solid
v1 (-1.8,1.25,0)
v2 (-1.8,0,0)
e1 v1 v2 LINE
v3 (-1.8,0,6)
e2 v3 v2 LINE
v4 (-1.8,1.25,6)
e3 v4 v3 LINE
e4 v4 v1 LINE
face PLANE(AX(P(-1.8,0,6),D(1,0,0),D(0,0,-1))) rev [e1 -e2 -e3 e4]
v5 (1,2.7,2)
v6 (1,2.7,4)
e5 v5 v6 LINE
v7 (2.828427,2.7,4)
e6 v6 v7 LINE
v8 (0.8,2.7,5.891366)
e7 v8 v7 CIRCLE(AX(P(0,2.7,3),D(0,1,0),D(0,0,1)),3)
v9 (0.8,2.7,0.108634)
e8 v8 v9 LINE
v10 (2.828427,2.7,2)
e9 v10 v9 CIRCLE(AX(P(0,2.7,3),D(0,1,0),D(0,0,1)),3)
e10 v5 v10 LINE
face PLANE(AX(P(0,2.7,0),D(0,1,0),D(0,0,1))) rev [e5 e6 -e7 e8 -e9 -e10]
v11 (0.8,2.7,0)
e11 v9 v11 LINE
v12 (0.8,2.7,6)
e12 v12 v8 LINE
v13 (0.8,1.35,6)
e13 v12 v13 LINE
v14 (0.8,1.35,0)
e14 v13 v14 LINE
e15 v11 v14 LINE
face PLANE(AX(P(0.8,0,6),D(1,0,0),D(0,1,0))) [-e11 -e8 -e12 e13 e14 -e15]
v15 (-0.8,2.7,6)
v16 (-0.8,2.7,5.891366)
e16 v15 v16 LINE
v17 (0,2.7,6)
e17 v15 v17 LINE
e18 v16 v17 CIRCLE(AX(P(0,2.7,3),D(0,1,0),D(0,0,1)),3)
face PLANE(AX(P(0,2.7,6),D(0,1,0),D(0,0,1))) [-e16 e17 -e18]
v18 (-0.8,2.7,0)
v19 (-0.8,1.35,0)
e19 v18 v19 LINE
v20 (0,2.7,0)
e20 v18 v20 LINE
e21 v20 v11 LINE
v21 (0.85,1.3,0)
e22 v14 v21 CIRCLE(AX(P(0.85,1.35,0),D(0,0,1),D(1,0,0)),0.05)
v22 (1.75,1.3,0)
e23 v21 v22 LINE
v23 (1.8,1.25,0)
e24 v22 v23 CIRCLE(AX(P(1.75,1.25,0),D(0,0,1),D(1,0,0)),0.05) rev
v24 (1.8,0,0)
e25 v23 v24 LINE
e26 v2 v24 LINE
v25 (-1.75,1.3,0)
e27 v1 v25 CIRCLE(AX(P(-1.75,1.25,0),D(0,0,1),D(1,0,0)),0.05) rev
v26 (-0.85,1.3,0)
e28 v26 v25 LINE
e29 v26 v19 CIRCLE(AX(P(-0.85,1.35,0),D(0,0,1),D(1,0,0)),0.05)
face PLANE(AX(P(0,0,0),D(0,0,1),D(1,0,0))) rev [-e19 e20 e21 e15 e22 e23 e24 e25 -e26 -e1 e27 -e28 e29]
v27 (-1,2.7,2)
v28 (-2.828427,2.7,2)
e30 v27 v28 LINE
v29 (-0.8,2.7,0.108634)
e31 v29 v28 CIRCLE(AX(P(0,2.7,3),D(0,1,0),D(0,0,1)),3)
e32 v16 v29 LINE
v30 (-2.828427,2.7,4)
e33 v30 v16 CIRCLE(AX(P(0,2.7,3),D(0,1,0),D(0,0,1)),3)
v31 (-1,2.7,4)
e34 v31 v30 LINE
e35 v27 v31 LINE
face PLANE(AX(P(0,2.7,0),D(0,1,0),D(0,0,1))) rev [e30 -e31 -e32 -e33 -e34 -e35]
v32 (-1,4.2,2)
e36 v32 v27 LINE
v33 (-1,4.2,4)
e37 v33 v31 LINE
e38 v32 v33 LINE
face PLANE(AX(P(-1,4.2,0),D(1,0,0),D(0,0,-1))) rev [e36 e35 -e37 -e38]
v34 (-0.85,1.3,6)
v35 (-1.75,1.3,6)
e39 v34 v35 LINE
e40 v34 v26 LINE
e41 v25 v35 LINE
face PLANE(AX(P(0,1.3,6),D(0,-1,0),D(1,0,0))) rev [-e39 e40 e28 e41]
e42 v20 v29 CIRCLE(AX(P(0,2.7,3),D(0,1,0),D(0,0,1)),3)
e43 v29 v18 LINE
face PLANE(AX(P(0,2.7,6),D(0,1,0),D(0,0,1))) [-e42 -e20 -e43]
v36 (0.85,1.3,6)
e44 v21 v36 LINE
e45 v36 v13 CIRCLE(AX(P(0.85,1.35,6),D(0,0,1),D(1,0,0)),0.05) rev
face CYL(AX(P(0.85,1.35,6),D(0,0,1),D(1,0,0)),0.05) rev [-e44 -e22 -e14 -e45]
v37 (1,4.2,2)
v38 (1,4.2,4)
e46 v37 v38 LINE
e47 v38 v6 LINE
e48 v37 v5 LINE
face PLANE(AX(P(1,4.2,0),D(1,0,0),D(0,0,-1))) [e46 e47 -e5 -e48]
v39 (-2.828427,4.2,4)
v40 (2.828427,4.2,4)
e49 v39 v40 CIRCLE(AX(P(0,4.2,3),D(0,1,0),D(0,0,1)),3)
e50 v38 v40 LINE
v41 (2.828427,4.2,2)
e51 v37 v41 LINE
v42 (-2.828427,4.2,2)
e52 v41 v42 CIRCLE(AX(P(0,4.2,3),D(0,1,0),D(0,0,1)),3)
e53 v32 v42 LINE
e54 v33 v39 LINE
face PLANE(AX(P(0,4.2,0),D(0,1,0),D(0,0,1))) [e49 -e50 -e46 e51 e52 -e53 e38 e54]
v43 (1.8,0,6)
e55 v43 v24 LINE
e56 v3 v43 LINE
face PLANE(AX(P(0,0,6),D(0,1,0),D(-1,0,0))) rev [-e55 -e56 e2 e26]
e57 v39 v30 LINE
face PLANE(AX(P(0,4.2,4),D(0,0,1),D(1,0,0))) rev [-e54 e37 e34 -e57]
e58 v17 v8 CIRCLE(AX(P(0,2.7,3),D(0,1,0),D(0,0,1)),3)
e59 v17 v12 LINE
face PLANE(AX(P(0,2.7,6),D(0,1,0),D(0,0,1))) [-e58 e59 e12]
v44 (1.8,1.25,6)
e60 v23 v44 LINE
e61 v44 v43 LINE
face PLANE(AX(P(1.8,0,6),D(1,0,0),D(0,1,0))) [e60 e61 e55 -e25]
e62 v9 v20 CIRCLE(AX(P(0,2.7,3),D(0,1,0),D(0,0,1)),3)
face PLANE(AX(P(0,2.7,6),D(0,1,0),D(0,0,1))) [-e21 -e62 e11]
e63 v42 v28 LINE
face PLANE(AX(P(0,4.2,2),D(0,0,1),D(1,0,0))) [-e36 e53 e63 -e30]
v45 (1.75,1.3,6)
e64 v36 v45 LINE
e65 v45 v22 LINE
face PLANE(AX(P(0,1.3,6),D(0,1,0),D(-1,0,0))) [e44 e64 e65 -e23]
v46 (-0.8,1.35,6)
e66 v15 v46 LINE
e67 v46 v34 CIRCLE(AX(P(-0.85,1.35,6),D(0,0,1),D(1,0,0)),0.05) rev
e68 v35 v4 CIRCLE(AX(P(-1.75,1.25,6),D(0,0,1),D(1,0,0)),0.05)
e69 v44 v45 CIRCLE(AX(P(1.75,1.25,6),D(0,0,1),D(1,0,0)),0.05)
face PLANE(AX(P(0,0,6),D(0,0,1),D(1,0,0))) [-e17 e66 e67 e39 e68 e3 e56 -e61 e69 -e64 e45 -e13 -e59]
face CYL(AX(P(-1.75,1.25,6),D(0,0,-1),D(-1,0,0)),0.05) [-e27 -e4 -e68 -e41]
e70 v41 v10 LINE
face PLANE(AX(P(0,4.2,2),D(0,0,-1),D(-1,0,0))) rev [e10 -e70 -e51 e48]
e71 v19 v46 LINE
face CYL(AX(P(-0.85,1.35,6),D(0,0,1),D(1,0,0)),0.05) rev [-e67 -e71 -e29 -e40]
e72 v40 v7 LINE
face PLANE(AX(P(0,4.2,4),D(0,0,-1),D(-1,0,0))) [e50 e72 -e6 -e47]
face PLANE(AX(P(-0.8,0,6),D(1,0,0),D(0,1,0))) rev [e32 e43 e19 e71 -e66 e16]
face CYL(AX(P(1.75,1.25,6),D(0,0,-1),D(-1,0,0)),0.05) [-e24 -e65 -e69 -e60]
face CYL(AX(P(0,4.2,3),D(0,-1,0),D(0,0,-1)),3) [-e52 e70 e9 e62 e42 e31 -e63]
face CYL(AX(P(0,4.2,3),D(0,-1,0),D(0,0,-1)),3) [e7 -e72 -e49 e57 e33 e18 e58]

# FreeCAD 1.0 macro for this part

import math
import FreeCAD as App
import Part
import Sketcher

V = App.Vector


def edges_at(feature, points):
    """Names of the edges that pass closest to the given points."""
    edges = feature.Shape.Edges
    near = lambda p: min(range(len(edges)), key=lambda i: edges[i].distToShape(Part.Vertex(*p))[0])
    return sorted({f"Edge{near(p) + 1}" for p in points})

doc = App.newDocument("Part")
body = doc.addObject("PartDesign::Body", "Body")

sketch1 = doc.addObject("Sketcher::SketchObject", "Sketch")
body.addObject(sketch1)
sketch1.AttachmentSupport = (doc.XY_Plane, [""])
sketch1.MapMode = "FlatFace"
sketch1.addGeometry([
    Part.LineSegment(V(0.8, 2.7, 0), V(-0.8, 2.7, 0)),
    Part.LineSegment(V(-0.8, 2.7, 0), V(-0.8, 1.3, 0)),
    Part.LineSegment(V(-0.8, 1.3, 0), V(-1.8, 1.3, 0)),
    Part.LineSegment(V(-1.8, 1.3, 0), V(-1.8, 0, 0)),
    Part.LineSegment(V(-1.8, 0, 0), V(1.8, 0, 0)),
    Part.LineSegment(V(1.8, 0, 0), V(1.8, 1.3, 0)),
    Part.LineSegment(V(1.8, 1.3, 0), V(0.8, 1.3, 0)),
    Part.LineSegment(V(0.8, 1.3, 0), V(0.8, 2.7, 0)),
], False)
sketch1.addConstraint([
    Sketcher.Constraint("Coincident", 0, 2, 1, 1),
    Sketcher.Constraint("Coincident", 1, 2, 2, 1),
    Sketcher.Constraint("Coincident", 2, 2, 3, 1),
    Sketcher.Constraint("Coincident", 3, 2, 4, 1),
    Sketcher.Constraint("Coincident", 4, 2, 5, 1),
    Sketcher.Constraint("Coincident", 5, 2, 6, 1),
    Sketcher.Constraint("Coincident", 6, 2, 7, 1),
    Sketcher.Constraint("Coincident", 7, 2, 0, 1),
    Sketcher.Constraint("Horizontal", 0),
    Sketcher.Constraint("Vertical", 1),
    Sketcher.Constraint("Horizontal", 2),
    Sketcher.Constraint("Vertical", 3),
    Sketcher.Constraint("Horizontal", 4),
    Sketcher.Constraint("Vertical", 5),
    Sketcher.Constraint("Horizontal", 6),
    Sketcher.Constraint("Vertical", 7),
    Sketcher.Constraint("Symmetric", 3, 2, 4, 2, -1, 1),
    Sketcher.Constraint("Symmetric", 1, 2, 6, 2, -2),
    Sketcher.Constraint("DistanceX", 2, 2, 2, 1, 1.0),
    Sketcher.Constraint("DistanceX", 0, 2, 0, 1, 1.6),
    Sketcher.Constraint("DistanceY", 1, 2, 1, 1, 1.4),
    Sketcher.Constraint("DistanceY", 3, 2, 3, 1, 1.3),
])
pad1 = doc.addObject("PartDesign::Pad", "Pad")
body.addObject(pad1)
pad1.Profile = sketch1
pad1.Length = 6

sketch2 = doc.addObject("Sketcher::SketchObject", "Sketch001")
body.addObject(sketch2)
sketch2.AttachmentSupport = (doc.XZ_Plane, [""])
sketch2.MapMode = "FlatFace"
sketch2.AttachmentOffset = App.Placement(V(0, 0, -2.7), App.Rotation())
sketch2.addGeometry([
    Part.ArcOfCircle(Part.Circle(V(0, 3, 0), V(0, 0, 1), 3), math.radians(-105), math.radians(-75)),
    Part.ArcOfCircle(Part.Circle(V(0, 3, 0), V(0, 0, 1), 3), math.radians(-161), math.radians(-105)),
    Part.LineSegment(V(-2.8, 2, 0), V(-1, 2, 0)),
    Part.LineSegment(V(-1, 2, 0), V(-1, 4, 0)),
    Part.LineSegment(V(-1, 4, 0), V(-2.8, 4, 0)),
    Part.ArcOfCircle(Part.Circle(V(0, 3, 0), V(0, 0, 1), 3), math.radians(105), math.radians(161)),
    Part.ArcOfCircle(Part.Circle(V(0, 3, 0), V(0, 0, 1), 3), math.radians(75), math.radians(105)),
    Part.ArcOfCircle(Part.Circle(V(0, 3, 0), V(0, 0, 1), 3), math.radians(19), math.radians(75)),
    Part.LineSegment(V(2.8, 4, 0), V(1, 4, 0)),
    Part.LineSegment(V(1, 4, 0), V(1, 2, 0)),
    Part.LineSegment(V(1, 2, 0), V(2.8, 2, 0)),
    Part.ArcOfCircle(Part.Circle(V(0, 3, 0), V(0, 0, 1), 3), math.radians(-75), math.radians(-19)),
], False)
sketch2.addConstraint([
    Sketcher.Constraint("Tangent", 0, 1, 1, 2),
    Sketcher.Constraint("Coincident", 1, 1, 2, 1),
    Sketcher.Constraint("Coincident", 2, 2, 3, 1),
    Sketcher.Constraint("Coincident", 3, 2, 4, 1),
    Sketcher.Constraint("Coincident", 4, 2, 5, 2),
    Sketcher.Constraint("Tangent", 5, 1, 6, 2),
    Sketcher.Constraint("Tangent", 6, 1, 7, 2),
    Sketcher.Constraint("Coincident", 7, 1, 8, 1),
    Sketcher.Constraint("Coincident", 8, 2, 9, 1),
    Sketcher.Constraint("Coincident", 9, 2, 10, 1),
    Sketcher.Constraint("Coincident", 10, 2, 11, 2),
    Sketcher.Constraint("Tangent", 11, 1, 0, 2),
    Sketcher.Constraint("Horizontal", 2),
    Sketcher.Constraint("Vertical", 3),
    Sketcher.Constraint("Horizontal", 4),
    Sketcher.Constraint("Horizontal", 8),
    Sketcher.Constraint("Vertical", 9),
    Sketcher.Constraint("Horizontal", 10),
    Sketcher.Constraint("Coincident", 5, 3, 0, 3),
    Sketcher.Constraint("Coincident", 7, 3, 0, 3),
    Sketcher.Constraint("Equal", 0, 1),
    Sketcher.Constraint("Equal", 1, 5),
    Sketcher.Constraint("Equal", 7, 11),
    Sketcher.Constraint("Symmetric", 5, 1, 6, 1, -2),
    Sketcher.Constraint("Symmetric", 3, 2, 8, 2, -2),
    Sketcher.Constraint("Horizontal", 2, 2, 9, 2),
    Sketcher.Constraint("Horizontal", 0, 1, 11, 1),
    Sketcher.Constraint("Vertical", 1, 1, 4, 2),
    Sketcher.Constraint("Vertical", 0, 1, 5, 1),
    Sketcher.Constraint("Radius", 0, 3.0),
    Sketcher.Constraint("DistanceY", 3, 1, 3, 2, 2.0),
    Sketcher.Constraint("DistanceY", -1, 1, 0, 3, 3.0),
    Sketcher.Constraint("DistanceX", 2, 2, -1, 1, 1.0),
    Sketcher.Constraint("DistanceX", 0, 1, -1, 1, 0.8),
])
pad2 = doc.addObject("PartDesign::Pad", "Pad001")
body.addObject(pad2)
pad2.Profile = sketch2
pad2.Length = 1.5
pad2.Reversed = True
doc.recompute()

fillet = doc.addObject("PartDesign::Fillet", "Fillet")
body.addObject(fillet)
fillet.Base = (pad2, edges_at(pad2, [
    (0.8, 1.3, 3),
    (1.8, 1.3, 3),
    (-1.8, 1.3, 3),
    (-0.8, 1.3, 3),
]))
fillet.Radius = 0.05

doc.recompute()
